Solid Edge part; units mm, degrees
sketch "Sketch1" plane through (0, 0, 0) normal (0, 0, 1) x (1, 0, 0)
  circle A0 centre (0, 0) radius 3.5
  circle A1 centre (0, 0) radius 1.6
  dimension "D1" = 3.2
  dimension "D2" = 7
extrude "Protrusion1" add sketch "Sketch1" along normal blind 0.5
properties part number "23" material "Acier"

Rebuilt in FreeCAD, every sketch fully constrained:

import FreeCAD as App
import Part
import Sketcher

V = App.Vector

doc = App.newDocument("Part")
body = doc.addObject("PartDesign::Body", "Body")

sketch1 = body.newObject("Sketcher::SketchObject", "Sketch")
sketch1.AttachmentSupport = (doc.getObject("XY_Plane"), [""])
sketch1.MapMode = "FlatFace"
sketch1.addGeometry(Part.Circle(V(0, 0, 0), V(0, 0, 1), 3.5), False)
sketch1.addGeometry(Part.Circle(V(0, 0, 0), V(0, 0, 1), 1.6), False)
sketch1.addConstraint(Sketcher.Constraint("Coincident", 0, 3, -1, 1))
sketch1.addConstraint(Sketcher.Constraint("Coincident", 1, 3, -1, 1))
sketch1.addConstraint(Sketcher.Constraint("Diameter", 0, 7.0))
sketch1.addConstraint(Sketcher.Constraint("Diameter", 1, 3.2))
pad1 = body.newObject("PartDesign::Pad", "Pad")
pad1.Profile = sketch1
pad1.Length = 0.5

doc.recompute()
